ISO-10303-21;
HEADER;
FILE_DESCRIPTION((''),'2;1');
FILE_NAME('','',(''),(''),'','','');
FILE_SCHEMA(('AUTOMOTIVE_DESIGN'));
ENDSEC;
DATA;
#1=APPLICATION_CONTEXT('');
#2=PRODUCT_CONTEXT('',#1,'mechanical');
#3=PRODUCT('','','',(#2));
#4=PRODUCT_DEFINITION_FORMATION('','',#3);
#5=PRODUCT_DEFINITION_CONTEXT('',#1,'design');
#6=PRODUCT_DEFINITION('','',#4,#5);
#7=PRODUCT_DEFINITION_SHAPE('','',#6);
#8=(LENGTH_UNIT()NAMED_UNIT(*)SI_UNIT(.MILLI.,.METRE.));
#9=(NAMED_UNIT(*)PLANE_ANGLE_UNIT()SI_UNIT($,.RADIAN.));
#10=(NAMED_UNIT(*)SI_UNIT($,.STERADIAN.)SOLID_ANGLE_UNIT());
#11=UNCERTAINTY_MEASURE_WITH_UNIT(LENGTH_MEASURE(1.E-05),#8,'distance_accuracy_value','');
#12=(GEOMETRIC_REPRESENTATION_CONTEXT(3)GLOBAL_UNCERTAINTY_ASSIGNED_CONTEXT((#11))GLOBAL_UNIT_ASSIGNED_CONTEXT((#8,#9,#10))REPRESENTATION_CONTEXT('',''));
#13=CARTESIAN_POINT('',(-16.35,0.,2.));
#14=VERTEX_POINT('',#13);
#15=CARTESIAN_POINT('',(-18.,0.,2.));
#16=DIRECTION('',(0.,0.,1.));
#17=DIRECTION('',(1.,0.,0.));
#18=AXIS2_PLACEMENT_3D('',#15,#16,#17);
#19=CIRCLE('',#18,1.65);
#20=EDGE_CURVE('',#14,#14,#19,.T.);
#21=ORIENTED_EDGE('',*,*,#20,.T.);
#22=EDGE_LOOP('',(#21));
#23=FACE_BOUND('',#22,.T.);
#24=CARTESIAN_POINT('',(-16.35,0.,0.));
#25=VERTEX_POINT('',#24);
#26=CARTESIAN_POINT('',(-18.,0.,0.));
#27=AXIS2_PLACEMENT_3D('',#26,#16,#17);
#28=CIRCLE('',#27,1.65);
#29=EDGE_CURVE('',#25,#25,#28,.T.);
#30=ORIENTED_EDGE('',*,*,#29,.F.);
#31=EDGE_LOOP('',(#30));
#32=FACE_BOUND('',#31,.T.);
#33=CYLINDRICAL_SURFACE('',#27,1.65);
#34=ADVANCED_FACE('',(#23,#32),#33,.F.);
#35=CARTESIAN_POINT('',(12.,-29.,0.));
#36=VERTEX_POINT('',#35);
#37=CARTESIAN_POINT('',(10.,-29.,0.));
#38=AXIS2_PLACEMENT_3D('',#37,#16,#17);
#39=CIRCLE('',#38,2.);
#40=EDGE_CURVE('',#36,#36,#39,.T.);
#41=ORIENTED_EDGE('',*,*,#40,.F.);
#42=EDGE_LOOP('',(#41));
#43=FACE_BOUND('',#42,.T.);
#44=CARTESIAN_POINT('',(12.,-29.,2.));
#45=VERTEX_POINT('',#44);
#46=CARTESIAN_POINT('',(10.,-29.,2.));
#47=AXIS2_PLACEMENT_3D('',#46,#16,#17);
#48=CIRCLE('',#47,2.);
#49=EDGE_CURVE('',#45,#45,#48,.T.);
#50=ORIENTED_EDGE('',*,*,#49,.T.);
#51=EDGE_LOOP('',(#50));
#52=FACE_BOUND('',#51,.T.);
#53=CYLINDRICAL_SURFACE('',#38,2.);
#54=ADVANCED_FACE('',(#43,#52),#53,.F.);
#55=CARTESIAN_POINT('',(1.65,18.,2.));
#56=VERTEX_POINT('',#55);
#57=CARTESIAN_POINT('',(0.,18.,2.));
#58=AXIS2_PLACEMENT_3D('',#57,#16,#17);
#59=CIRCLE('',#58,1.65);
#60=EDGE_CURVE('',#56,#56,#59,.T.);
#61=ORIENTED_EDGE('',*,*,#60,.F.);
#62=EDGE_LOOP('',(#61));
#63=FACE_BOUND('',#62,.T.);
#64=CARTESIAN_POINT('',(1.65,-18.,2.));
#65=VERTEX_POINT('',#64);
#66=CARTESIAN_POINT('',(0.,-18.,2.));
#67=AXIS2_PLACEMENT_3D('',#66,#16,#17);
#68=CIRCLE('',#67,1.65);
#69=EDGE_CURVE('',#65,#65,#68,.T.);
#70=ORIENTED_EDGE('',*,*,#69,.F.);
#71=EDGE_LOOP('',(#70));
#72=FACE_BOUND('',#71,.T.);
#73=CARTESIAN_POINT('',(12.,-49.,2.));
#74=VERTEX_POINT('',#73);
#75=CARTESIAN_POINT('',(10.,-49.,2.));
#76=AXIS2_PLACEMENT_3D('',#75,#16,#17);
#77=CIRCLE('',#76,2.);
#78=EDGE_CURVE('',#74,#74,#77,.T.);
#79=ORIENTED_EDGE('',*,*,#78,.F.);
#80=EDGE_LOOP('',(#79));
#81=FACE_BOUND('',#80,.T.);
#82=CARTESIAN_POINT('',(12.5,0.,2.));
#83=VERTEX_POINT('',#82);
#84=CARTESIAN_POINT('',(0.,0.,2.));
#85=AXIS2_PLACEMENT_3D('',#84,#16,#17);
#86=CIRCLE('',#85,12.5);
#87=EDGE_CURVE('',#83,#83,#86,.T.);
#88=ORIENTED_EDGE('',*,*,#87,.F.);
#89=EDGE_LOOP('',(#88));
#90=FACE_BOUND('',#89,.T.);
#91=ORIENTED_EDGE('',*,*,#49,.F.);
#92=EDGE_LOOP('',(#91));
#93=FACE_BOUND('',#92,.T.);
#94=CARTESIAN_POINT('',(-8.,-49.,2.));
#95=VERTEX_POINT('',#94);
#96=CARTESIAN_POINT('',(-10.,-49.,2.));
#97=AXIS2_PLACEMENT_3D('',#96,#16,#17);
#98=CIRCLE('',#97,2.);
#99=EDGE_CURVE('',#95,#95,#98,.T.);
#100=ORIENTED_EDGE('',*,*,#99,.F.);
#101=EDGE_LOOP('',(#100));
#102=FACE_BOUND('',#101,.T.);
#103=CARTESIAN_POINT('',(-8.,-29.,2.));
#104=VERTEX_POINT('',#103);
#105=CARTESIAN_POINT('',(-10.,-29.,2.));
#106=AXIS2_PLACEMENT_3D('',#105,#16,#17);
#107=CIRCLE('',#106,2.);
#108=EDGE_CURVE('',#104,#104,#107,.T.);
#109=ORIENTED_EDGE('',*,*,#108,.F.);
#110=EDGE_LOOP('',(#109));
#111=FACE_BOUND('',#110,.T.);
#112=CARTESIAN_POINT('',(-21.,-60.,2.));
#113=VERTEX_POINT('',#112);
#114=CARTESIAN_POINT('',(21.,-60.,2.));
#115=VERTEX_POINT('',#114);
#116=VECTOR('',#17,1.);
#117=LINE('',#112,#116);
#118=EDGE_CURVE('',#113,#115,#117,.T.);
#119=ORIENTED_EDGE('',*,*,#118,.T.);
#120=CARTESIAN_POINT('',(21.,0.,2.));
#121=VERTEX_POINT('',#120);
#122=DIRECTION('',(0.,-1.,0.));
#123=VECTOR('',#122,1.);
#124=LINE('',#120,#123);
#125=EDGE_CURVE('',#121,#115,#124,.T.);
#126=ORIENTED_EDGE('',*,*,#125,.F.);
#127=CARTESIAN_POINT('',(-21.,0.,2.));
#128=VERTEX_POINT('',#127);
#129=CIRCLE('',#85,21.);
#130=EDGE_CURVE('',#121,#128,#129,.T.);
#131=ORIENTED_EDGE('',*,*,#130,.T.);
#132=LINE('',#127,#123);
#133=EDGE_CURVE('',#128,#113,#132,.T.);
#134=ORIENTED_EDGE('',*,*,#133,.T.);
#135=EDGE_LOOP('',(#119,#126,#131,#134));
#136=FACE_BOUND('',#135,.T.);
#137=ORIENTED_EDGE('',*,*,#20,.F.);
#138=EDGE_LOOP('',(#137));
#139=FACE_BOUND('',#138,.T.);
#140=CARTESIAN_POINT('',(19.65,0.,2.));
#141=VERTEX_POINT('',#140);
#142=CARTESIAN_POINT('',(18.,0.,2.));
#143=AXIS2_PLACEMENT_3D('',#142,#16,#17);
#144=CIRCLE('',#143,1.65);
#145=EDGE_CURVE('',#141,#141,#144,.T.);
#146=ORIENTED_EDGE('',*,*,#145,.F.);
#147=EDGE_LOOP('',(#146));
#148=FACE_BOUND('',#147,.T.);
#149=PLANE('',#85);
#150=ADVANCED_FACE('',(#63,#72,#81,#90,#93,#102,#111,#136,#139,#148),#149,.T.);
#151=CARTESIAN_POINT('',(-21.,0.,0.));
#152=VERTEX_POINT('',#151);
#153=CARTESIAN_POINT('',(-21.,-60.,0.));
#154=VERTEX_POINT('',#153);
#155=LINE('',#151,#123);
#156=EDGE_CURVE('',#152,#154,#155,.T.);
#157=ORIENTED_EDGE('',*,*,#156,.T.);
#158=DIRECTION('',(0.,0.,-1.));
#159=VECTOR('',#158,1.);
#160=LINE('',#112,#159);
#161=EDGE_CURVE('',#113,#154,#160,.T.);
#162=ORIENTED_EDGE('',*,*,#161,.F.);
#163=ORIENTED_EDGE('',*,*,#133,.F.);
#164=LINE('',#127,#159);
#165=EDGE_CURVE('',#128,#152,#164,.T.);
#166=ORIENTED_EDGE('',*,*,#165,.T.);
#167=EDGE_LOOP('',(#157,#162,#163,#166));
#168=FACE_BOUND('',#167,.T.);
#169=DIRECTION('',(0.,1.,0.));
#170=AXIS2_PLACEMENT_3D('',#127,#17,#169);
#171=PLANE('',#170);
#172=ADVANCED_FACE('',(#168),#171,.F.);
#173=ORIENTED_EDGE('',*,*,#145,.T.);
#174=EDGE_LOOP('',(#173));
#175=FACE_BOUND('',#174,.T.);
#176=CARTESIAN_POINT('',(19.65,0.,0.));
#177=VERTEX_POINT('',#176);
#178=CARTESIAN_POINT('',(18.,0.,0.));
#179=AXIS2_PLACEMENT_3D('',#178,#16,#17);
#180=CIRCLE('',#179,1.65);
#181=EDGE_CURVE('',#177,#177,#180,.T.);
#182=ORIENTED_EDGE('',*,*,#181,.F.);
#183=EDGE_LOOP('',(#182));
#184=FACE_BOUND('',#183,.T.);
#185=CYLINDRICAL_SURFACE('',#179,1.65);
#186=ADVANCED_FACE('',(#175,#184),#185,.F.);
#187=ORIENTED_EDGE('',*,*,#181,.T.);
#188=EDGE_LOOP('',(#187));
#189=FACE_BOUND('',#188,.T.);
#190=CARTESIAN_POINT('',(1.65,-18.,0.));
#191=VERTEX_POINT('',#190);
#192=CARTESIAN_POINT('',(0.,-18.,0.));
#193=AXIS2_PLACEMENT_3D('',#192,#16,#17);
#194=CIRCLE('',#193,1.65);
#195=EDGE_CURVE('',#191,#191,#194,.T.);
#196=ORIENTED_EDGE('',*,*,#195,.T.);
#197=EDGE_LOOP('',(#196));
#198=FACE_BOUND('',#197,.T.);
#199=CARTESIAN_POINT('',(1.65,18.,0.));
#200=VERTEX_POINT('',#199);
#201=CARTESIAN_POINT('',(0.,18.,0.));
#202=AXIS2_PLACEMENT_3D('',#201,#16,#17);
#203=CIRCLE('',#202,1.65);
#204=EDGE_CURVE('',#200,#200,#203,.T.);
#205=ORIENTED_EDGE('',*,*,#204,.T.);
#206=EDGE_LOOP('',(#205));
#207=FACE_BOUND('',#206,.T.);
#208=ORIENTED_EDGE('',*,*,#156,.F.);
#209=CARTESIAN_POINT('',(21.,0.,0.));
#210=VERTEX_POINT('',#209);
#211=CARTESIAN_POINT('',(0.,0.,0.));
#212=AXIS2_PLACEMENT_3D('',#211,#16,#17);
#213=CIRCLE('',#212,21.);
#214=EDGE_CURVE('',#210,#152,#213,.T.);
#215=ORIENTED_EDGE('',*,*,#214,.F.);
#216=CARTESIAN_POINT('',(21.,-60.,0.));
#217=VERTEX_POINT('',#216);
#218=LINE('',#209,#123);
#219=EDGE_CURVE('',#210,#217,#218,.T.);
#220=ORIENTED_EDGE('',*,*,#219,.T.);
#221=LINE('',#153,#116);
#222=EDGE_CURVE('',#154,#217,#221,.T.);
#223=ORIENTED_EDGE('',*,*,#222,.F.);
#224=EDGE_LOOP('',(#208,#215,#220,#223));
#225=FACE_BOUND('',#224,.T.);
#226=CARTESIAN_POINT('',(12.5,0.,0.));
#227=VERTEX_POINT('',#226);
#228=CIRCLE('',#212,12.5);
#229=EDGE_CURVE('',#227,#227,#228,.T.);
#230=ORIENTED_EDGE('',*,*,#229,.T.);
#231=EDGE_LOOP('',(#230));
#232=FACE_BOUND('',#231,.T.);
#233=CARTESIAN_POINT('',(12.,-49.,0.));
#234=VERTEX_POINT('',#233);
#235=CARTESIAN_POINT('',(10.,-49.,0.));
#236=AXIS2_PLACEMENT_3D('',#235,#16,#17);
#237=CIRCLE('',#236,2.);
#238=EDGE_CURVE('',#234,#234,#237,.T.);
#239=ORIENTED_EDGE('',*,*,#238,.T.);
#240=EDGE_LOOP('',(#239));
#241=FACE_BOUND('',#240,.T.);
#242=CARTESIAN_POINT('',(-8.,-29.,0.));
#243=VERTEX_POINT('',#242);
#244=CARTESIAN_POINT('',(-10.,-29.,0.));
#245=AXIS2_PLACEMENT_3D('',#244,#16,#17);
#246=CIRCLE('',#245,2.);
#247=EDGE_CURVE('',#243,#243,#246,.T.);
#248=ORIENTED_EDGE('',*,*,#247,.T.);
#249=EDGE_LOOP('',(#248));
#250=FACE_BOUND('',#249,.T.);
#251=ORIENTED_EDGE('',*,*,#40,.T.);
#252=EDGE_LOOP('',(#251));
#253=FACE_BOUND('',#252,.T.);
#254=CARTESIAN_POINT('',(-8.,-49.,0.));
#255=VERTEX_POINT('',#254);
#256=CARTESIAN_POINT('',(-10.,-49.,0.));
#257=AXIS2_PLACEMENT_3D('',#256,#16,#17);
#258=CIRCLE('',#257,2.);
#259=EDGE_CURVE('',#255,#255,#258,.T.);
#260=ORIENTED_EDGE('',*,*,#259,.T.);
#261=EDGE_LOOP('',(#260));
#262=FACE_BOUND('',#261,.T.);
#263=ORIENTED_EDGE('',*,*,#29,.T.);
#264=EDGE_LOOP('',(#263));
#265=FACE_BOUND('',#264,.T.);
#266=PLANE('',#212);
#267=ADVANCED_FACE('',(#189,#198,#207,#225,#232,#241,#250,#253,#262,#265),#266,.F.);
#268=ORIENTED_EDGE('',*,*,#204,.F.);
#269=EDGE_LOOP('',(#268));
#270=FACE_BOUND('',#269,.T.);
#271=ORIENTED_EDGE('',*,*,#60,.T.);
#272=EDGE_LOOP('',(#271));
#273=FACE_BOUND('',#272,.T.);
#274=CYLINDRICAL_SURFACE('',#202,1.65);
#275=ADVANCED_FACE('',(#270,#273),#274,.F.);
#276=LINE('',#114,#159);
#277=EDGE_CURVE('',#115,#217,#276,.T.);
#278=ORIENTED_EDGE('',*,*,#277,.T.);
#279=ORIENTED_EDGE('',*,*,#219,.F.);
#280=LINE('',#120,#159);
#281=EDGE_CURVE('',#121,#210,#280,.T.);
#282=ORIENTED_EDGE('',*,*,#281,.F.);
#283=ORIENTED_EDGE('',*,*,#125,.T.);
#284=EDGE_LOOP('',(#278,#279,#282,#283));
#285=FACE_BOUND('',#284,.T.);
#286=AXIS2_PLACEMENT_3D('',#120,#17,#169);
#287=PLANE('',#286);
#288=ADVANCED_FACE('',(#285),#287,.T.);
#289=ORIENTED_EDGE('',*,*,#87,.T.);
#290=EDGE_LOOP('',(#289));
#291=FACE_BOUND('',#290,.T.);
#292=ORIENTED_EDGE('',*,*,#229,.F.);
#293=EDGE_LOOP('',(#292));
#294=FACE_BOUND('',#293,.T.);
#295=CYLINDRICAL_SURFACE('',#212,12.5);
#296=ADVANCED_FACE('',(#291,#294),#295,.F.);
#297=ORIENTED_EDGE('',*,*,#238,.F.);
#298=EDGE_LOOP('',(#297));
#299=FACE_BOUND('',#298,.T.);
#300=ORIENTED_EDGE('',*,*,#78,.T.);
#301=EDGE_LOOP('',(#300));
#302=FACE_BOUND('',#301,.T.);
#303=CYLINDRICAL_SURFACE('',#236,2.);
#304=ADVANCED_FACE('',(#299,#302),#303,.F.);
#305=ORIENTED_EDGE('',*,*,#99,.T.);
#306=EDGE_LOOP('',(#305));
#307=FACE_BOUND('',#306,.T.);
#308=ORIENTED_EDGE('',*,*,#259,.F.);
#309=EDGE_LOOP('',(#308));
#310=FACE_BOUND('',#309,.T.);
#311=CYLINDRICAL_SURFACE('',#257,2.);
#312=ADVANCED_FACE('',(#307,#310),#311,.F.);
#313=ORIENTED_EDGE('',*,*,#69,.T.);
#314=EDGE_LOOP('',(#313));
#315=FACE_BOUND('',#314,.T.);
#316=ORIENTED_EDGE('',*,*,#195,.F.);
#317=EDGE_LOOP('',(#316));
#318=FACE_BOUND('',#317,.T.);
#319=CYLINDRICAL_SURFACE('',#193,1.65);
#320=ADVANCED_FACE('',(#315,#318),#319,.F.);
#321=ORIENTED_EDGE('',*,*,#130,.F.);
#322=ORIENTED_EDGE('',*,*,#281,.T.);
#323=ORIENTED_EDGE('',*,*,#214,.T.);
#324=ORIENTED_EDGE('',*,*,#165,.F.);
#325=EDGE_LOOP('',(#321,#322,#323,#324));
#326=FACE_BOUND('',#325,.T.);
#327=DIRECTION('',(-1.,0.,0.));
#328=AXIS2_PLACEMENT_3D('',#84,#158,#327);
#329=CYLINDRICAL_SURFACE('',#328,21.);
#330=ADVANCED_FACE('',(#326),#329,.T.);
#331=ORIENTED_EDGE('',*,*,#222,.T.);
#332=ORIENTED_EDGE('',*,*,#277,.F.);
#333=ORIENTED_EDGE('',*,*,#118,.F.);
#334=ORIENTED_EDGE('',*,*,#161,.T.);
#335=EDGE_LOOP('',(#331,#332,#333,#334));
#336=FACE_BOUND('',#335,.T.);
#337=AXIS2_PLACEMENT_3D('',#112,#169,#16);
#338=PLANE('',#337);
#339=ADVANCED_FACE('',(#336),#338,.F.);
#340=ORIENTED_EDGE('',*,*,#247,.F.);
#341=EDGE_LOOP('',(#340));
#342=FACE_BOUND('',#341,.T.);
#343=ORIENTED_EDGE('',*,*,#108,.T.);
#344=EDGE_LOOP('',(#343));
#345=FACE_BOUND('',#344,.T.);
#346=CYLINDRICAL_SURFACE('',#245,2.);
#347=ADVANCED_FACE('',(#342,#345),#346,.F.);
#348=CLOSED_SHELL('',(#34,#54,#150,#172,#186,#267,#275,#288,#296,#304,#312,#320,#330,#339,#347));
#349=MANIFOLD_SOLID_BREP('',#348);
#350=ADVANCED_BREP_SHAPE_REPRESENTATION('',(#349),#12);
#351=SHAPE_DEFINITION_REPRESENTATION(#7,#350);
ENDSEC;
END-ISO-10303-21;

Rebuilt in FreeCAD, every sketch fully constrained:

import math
import FreeCAD as App
import Part
import Sketcher
from FreeCAD import Vector

doc = App.newDocument("Part")
body = doc.addObject("PartDesign::Body", "Body")

sketch1 = body.newObject("Sketcher::SketchObject", "Sketch")
sketch1.AttachmentSupport = (doc.getObject("XY_Plane"), [""])
sketch1.MapMode = "FlatFace"
sketch1.addGeometry(Part.LineSegment(Vector(21, -60, 0), Vector(21, 0, 0)), False)
sketch1.addGeometry(Part.ArcOfCircle(Part.Circle(Vector(0, 0, 0), Vector(0, 0, 1), 21), math.radians(0), math.radians(180)), False)
sketch1.addGeometry(Part.LineSegment(Vector(-21, 0, 0), Vector(-21, -60, 0)), False)
sketch1.addGeometry(Part.LineSegment(Vector(-21, -60, 0), Vector(21, -60, 0)), False)
sketch1.addConstraint(Sketcher.Constraint("Tangent", 0, 2, 1, 1))
sketch1.addConstraint(Sketcher.Constraint("Tangent", 1, 2, 2, 1))
sketch1.addConstraint(Sketcher.Constraint("Coincident", 2, 2, 3, 1))
sketch1.addConstraint(Sketcher.Constraint("Coincident", 3, 2, 0, 1))
sketch1.addConstraint(Sketcher.Constraint("Vertical", 0))
sketch1.addConstraint(Sketcher.Constraint("Vertical", 2))
sketch1.addConstraint(Sketcher.Constraint("Horizontal", 3))
sketch1.addConstraint(Sketcher.Constraint("Coincident", 1, 3, -1, 1))
sketch1.addConstraint(Sketcher.Constraint("Radius", 1, 21.0))
sketch1.addConstraint(Sketcher.Constraint("DistanceY", 0, 1, 0, 2, 60.0))
pad1 = body.newObject("PartDesign::Pad", "Pad")
pad1.Profile = sketch1
pad1.Length = 2

sketch2 = body.newObject("Sketcher::SketchObject", "Sketch001")
sketch2.AttachmentSupport = (doc.getObject("XY_Plane"), [""])
sketch2.MapMode = "FlatFace"
sketch2.AttachmentOffset = App.Placement(Vector(0, 0, 2), App.Rotation())
sketch2.addGeometry(Part.Circle(Vector(-18, 0, 0), Vector(0, 0, 1), 1.6), False)
sketch2.addGeometry(Part.Circle(Vector(18, 0, 0), Vector(0, 0, 1), 1.6), False)
sketch2.addGeometry(Part.Circle(Vector(0, 18, 0), Vector(0, 0, 1), 1.6), False)
sketch2.addGeometry(Part.Circle(Vector(0, -18, 0), Vector(0, 0, 1), 1.6), False)
sketch2.addConstraint(Sketcher.Constraint("Equal", 0, 1))
sketch2.addConstraint(Sketcher.Constraint("Equal", 1, 2))
sketch2.addConstraint(Sketcher.Constraint("Equal", 2, 3))
sketch2.addConstraint(Sketcher.Constraint("Symmetric", 0, 3, 1, 3, -1, 1))
sketch2.addConstraint(Sketcher.Constraint("Symmetric", 2, 3, 3, 3, -1, 1))
sketch2.addConstraint(Sketcher.Constraint("PointOnObject", 0, 3, -1))
sketch2.addConstraint(Sketcher.Constraint("PointOnObject", 2, 3, -2))
sketch2.addConstraint(Sketcher.Constraint("Diameter", 0, 3.3))
sketch2.addConstraint(Sketcher.Constraint("DistanceX", 0, 3, -1, 1, 18.0))
sketch2.addConstraint(Sketcher.Constraint("DistanceY", -1, 1, 2, 3, 18.0))
pocket1 = body.newObject("PartDesign::Pocket", "Pocket")
pocket1.Profile = sketch2
pocket1.Length = 2

sketch3 = body.newObject("Sketcher::SketchObject", "Sketch002")
sketch3.AttachmentSupport = (doc.getObject("XY_Plane"), [""])
sketch3.MapMode = "FlatFace"
sketch3.AttachmentOffset = App.Placement(Vector(0, 0, 2), App.Rotation())
sketch3.addGeometry(Part.Circle(Vector(0, 0, 0), Vector(0, 0, 1), 12), False)
sketch3.addConstraint(Sketcher.Constraint("Coincident", 0, 3, -1, 1))
sketch3.addConstraint(Sketcher.Constraint("Diameter", 0, 25.0))
pocket2 = body.newObject("PartDesign::Pocket", "Pocket001")
pocket2.Profile = sketch3
pocket2.Length = 2

sketch4 = body.newObject("Sketcher::SketchObject", "Sketch003")
sketch4.AttachmentSupport = (doc.getObject("XY_Plane"), [""])
sketch4.MapMode = "FlatFace"
sketch4.AttachmentOffset = App.Placement(Vector(0, 0, 2), App.Rotation())
sketch4.addGeometry(Part.Circle(Vector(-10, -29, 0), Vector(0, 0, 1), 2), False)
sketch4.addGeometry(Part.Circle(Vector(10, -29, 0), Vector(0, 0, 1), 2), False)
sketch4.addGeometry(Part.Circle(Vector(10, -49, 0), Vector(0, 0, 1), 2), False)
sketch4.addGeometry(Part.Circle(Vector(-10, -49, 0), Vector(0, 0, 1), 2), False)
sketch4.addConstraint(Sketcher.Constraint("Equal", 0, 1))
sketch4.addConstraint(Sketcher.Constraint("Equal", 1, 2))
sketch4.addConstraint(Sketcher.Constraint("Equal", 2, 3))
sketch4.addConstraint(Sketcher.Constraint("Symmetric", 0, 3, 1, 3, -2))
sketch4.addConstraint(Sketcher.Constraint("Symmetric", 2, 3, 3, 3, -2))
sketch4.addConstraint(Sketcher.Constraint("Vertical", 1, 3, 2, 3))
sketch4.addConstraint(Sketcher.Constraint("Diameter", 0, 4.0))
sketch4.addConstraint(Sketcher.Constraint("DistanceX", 0, 3, -1, 1, 10.0))
sketch4.addConstraint(Sketcher.Constraint("DistanceY", 0, 3, -1, 1, 29.0))
sketch4.addConstraint(Sketcher.Constraint("DistanceY", 2, 3, -1, 1, 49.0))
pocket3 = body.newObject("PartDesign::Pocket", "Pocket002")
pocket3.Profile = sketch4
pocket3.Length = 2

doc.recompute()
